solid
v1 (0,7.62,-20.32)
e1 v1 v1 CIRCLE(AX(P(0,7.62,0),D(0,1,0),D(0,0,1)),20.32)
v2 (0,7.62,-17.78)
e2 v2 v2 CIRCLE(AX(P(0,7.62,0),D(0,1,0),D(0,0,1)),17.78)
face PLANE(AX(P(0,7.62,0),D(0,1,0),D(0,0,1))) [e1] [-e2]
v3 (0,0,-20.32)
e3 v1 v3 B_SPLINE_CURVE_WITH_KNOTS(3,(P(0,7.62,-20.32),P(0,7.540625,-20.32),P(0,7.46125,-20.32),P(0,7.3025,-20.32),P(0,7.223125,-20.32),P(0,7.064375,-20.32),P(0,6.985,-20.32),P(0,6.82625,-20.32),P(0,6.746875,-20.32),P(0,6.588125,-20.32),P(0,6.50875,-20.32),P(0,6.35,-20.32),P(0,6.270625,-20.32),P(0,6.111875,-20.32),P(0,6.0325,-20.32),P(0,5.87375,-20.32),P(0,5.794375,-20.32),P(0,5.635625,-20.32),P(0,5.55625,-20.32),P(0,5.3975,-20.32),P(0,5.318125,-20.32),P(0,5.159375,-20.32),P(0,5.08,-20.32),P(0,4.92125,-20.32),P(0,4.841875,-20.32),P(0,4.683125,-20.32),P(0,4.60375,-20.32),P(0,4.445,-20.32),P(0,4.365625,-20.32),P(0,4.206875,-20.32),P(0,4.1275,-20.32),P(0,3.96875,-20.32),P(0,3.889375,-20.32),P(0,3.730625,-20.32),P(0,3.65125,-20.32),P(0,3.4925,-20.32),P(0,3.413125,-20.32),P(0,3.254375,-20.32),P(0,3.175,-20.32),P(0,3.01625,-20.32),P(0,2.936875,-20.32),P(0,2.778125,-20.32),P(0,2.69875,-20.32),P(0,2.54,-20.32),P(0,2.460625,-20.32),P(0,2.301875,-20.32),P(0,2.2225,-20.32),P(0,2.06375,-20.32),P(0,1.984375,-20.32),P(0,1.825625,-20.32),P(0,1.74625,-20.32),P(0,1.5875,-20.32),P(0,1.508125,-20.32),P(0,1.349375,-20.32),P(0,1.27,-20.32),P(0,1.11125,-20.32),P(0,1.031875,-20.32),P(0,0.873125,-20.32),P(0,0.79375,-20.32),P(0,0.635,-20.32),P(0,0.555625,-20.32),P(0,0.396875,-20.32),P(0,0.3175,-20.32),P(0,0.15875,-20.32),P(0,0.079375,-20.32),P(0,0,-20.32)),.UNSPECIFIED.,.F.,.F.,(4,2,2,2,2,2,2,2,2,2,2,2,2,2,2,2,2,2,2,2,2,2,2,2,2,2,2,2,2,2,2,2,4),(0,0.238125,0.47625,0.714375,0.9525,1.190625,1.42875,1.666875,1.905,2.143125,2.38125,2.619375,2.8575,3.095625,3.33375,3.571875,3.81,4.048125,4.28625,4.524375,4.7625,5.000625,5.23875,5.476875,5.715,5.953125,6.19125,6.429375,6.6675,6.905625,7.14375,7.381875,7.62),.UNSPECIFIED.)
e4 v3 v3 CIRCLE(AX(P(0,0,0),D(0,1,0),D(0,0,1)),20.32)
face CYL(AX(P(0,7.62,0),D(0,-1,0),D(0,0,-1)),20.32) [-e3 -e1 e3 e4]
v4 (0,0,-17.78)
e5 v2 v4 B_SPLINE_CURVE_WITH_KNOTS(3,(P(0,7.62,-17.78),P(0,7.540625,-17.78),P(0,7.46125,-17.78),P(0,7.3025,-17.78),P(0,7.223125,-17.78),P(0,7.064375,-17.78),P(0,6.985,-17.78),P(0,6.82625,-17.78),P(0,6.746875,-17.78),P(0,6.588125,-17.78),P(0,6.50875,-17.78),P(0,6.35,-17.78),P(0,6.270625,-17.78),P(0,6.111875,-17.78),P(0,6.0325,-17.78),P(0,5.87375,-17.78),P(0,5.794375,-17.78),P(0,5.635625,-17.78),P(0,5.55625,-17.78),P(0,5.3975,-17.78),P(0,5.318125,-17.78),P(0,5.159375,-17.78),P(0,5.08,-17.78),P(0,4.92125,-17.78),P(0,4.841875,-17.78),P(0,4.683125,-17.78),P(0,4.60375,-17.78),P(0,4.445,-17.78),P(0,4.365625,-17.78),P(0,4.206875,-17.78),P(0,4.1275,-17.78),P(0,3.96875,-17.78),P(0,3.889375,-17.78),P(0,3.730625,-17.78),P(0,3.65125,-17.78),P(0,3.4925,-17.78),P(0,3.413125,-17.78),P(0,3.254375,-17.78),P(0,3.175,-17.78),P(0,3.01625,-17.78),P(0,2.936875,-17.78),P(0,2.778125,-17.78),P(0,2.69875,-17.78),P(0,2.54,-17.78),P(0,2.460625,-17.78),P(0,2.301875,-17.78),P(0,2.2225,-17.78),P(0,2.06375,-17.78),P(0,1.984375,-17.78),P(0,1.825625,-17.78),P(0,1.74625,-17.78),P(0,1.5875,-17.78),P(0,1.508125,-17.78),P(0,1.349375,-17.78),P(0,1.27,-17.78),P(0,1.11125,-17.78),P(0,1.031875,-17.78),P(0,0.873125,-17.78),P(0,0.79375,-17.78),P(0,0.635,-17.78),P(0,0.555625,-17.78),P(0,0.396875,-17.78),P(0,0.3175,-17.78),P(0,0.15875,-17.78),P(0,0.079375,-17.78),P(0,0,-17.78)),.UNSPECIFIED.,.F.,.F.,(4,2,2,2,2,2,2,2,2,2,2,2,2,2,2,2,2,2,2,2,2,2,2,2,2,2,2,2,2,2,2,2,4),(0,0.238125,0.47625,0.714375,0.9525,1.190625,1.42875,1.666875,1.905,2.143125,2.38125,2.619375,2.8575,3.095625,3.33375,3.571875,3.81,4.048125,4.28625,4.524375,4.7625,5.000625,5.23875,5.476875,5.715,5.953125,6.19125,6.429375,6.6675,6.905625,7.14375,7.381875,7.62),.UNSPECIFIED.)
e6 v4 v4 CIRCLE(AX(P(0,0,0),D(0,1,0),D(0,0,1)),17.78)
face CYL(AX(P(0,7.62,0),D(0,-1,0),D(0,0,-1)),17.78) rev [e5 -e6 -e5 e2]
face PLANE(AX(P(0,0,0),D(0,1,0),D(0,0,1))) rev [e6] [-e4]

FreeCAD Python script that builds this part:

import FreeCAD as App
import Part
import Sketcher
Q = App.Units.Quantity

doc = App.newDocument("Part")
body = doc.addObject("PartDesign::Body", "Body")

# Sketch on XZ plane
sketch1 = body.newObject("Sketcher::SketchObject", "Sketch")
sketch1.AttachmentSupport = (doc.getObject("XZ_Plane"), [""])
sketch1.MapMode = "FlatFace"
sketch1.addGeometry(Part.Circle(App.Vector(0, 0, 0), App.Vector(0, 0, 1), 20), False)
sketch1.addGeometry(Part.Circle(App.Vector(0, 0, 0), App.Vector(0, 0, 1), 18), False)
sketch1.addConstraint(Sketcher.Constraint("Coincident", 0, 3, -1, 1))
sketch1.addConstraint(Sketcher.Constraint("Coincident", 1, 3, -1, 1))
sketch1.addConstraint(Sketcher.Constraint("Diameter", 0, Q("1.6 in")))
sketch1.addConstraint(Sketcher.Constraint("Diameter", 1, Q("1.4 in")))
pad1 = body.newObject("PartDesign::Pad", "Pad")
pad1.Profile = sketch1
pad1.Length = Q("0.3 in")
pad1.Reversed = True

doc.recompute()
